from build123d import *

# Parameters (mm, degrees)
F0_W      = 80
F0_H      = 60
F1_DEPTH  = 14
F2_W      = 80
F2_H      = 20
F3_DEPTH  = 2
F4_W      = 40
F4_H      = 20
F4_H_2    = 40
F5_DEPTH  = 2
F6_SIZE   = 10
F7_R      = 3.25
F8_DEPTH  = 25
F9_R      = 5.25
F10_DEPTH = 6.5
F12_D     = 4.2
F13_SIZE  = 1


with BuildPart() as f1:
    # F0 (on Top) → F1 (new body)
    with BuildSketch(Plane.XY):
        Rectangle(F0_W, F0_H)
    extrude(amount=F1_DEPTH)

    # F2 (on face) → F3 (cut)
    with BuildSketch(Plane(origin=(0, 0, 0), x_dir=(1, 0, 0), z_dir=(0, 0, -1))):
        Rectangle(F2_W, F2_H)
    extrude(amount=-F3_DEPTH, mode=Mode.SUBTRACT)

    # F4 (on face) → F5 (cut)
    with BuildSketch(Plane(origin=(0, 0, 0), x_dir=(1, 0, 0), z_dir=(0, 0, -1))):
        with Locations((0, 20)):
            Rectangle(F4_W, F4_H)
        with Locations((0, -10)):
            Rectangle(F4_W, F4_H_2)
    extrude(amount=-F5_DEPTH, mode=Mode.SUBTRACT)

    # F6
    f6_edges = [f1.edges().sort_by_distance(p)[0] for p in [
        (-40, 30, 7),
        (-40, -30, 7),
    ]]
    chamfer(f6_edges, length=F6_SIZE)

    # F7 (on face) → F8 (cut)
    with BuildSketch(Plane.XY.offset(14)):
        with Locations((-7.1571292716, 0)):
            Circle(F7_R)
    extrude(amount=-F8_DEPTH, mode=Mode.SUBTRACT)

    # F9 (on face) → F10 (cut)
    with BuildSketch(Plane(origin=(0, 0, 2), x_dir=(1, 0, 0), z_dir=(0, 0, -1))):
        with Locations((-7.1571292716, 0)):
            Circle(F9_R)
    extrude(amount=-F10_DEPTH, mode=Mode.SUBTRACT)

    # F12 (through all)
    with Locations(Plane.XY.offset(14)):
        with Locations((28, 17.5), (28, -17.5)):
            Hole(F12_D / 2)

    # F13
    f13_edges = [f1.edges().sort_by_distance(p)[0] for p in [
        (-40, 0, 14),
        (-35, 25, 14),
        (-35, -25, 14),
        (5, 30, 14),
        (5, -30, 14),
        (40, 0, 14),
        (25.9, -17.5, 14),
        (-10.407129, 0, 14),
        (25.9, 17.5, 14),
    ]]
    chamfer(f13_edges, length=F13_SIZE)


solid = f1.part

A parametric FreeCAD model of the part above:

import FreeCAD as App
import Part
import Sketcher


def edges_at(feature, points):
    """Names of the edges that pass closest to the given points."""
    edges = feature.Shape.Edges
    near = lambda p: min(range(len(edges)), key=lambda i: edges[i].distToShape(Part.Vertex(*p))[0])
    return sorted({f"Edge{near(p) + 1}" for p in points})

doc = App.newDocument("Part")
body = doc.addObject("PartDesign::Body", "Body")

# Sketch on XY plane
sketch1 = body.newObject("Sketcher::SketchObject", "Sketch")
sketch1.AttachmentSupport = (doc.getObject("XY_Plane"), [""])
sketch1.MapMode = "FlatFace"
sketch1.addGeometry(Part.LineSegment(App.Vector(-40, 30, 0), App.Vector(-40, -30, 0)), False)
sketch1.addGeometry(Part.LineSegment(App.Vector(-40, -30, 0), App.Vector(40, -30, 0)), False)
sketch1.addGeometry(Part.LineSegment(App.Vector(40, -30, 0), App.Vector(40, 30, 0)), False)
sketch1.addGeometry(Part.LineSegment(App.Vector(40, 30, 0), App.Vector(-40, 30, 0)), False)
sketch1.addConstraint(Sketcher.Constraint("Coincident", 0, 2, 1, 1))
sketch1.addConstraint(Sketcher.Constraint("Coincident", 1, 2, 2, 1))
sketch1.addConstraint(Sketcher.Constraint("Coincident", 2, 2, 3, 1))
sketch1.addConstraint(Sketcher.Constraint("Coincident", 3, 2, 0, 1))
sketch1.addConstraint(Sketcher.Constraint("Vertical", 0))
sketch1.addConstraint(Sketcher.Constraint("Horizontal", 1))
sketch1.addConstraint(Sketcher.Constraint("Vertical", 2))
sketch1.addConstraint(Sketcher.Constraint("Horizontal", 3))
sketch1.addConstraint(Sketcher.Constraint("Symmetric", 0, 2, 2, 2, -1, 1))
sketch1.addConstraint(Sketcher.Constraint("DistanceX", 1, 1, 1, 2, 80.0))
sketch1.addConstraint(Sketcher.Constraint("DistanceY", 0, 2, 0, 1, 60.0))
pad1 = body.newObject("PartDesign::Pad", "Pad")
pad1.Profile = sketch1
pad1.Length = 14

# Sketch on XY plane
sketch2 = body.newObject("Sketcher::SketchObject", "Sketch001")
sketch2.AttachmentSupport = (doc.getObject("XY_Plane"), [""])
sketch2.MapMode = "FlatFace"
sketch2.addGeometry(Part.LineSegment(App.Vector(-40, -10, 0), App.Vector(-40, 10, 0)), False)
sketch2.addGeometry(Part.LineSegment(App.Vector(-40, 10, 0), App.Vector(40, 10, 0)), False)
sketch2.addGeometry(Part.LineSegment(App.Vector(40, 10, 0), App.Vector(40, -10, 0)), False)
sketch2.addGeometry(Part.LineSegment(App.Vector(40, -10, 0), App.Vector(-40, -10, 0)), False)
sketch2.addConstraint(Sketcher.Constraint("Coincident", 0, 2, 1, 1))
sketch2.addConstraint(Sketcher.Constraint("Coincident", 1, 2, 2, 1))
sketch2.addConstraint(Sketcher.Constraint("Coincident", 2, 2, 3, 1))
sketch2.addConstraint(Sketcher.Constraint("Coincident", 3, 2, 0, 1))
sketch2.addConstraint(Sketcher.Constraint("Vertical", 0))
sketch2.addConstraint(Sketcher.Constraint("Horizontal", 1))
sketch2.addConstraint(Sketcher.Constraint("Vertical", 2))
sketch2.addConstraint(Sketcher.Constraint("Horizontal", 3))
sketch2.addConstraint(Sketcher.Constraint("Symmetric", 0, 2, 2, 2, -1, 1))
sketch2.addConstraint(Sketcher.Constraint("DistanceX", 1, 1, 1, 2, 80.0))
sketch2.addConstraint(Sketcher.Constraint("DistanceY", 0, 1, 0, 2, 20.0))
pocket1 = body.newObject("PartDesign::Pocket", "Pocket")
pocket1.Profile = sketch2
pocket1.Length = 2
pocket1.Reversed = True

# Sketch on XY plane
sketch3 = body.newObject("Sketcher::SketchObject", "Sketch002")
sketch3.AttachmentSupport = (doc.getObject("XY_Plane"), [""])
sketch3.MapMode = "FlatFace"
sketch3.addGeometry(Part.LineSegment(App.Vector(-20, -30, 0), App.Vector(-20, 30, 0)), False)
sketch3.addGeometry(Part.LineSegment(App.Vector(-20, 30, 0), App.Vector(20, 30, 0)), False)
sketch3.addGeometry(Part.LineSegment(App.Vector(20, 30, 0), App.Vector(20, -30, 0)), False)
sketch3.addGeometry(Part.LineSegment(App.Vector(20, -30, 0), App.Vector(-20, -30, 0)), False)
sketch3.addConstraint(Sketcher.Constraint("Coincident", 0, 2, 1, 1))
sketch3.addConstraint(Sketcher.Constraint("Coincident", 1, 2, 2, 1))
sketch3.addConstraint(Sketcher.Constraint("Coincident", 2, 2, 3, 1))
sketch3.addConstraint(Sketcher.Constraint("Coincident", 3, 2, 0, 1))
sketch3.addConstraint(Sketcher.Constraint("Vertical", 0))
sketch3.addConstraint(Sketcher.Constraint("Horizontal", 1))
sketch3.addConstraint(Sketcher.Constraint("Vertical", 2))
sketch3.addConstraint(Sketcher.Constraint("Horizontal", 3))
sketch3.addConstraint(Sketcher.Constraint("Symmetric", 0, 2, 2, 2, -1, 1))
sketch3.addConstraint(Sketcher.Constraint("DistanceX", 1, 1, 1, 2, 40.0))
sketch3.addConstraint(Sketcher.Constraint("DistanceY", 0, 1, 0, 2, 60.0))
pocket2 = body.newObject("PartDesign::Pocket", "Pocket001")
pocket2.Profile = sketch3
pocket2.Length = 2
pocket2.Reversed = True
doc.recompute()

chamfer = body.newObject("PartDesign::Chamfer", "Chamfer")
chamfer.Base = (pocket2, edges_at(pocket2, [(-40, 30, 7), (-40, -30, 7)]))
chamfer.Size = 10

# Sketch on XY plane
sketch4 = body.newObject("Sketcher::SketchObject", "Sketch003")
sketch4.AttachmentSupport = (doc.getObject("XY_Plane"), [""])
sketch4.MapMode = "FlatFace"
sketch4.AttachmentOffset = App.Placement(App.Vector(0, 0, 14), App.Rotation())
sketch4.addGeometry(Part.Circle(App.Vector(-7.2, 0, 0), App.Vector(0, 0, 1), 3.2), False)
sketch4.addConstraint(Sketcher.Constraint("PointOnObject", 0, 3, -1))
sketch4.addConstraint(Sketcher.Constraint("Diameter", 0, 6.5))
sketch4.addConstraint(Sketcher.Constraint("DistanceX", 0, 3, -1, 1, 7.157129))
pocket3 = body.newObject("PartDesign::Pocket", "Pocket002")
pocket3.Profile = sketch4
pocket3.Length = 25

# Sketch on XY plane
sketch5 = body.newObject("Sketcher::SketchObject", "Sketch004")
sketch5.AttachmentSupport = (doc.getObject("XY_Plane"), [""])
sketch5.MapMode = "FlatFace"
sketch5.AttachmentOffset = App.Placement(App.Vector(0, 0, 2), App.Rotation())
sketch5.addGeometry(Part.Circle(App.Vector(-7, 0, 0), App.Vector(0, 0, 1), 5), False)
sketch5.addConstraint(Sketcher.Constraint("PointOnObject", 0, 3, -1))
sketch5.addConstraint(Sketcher.Constraint("Diameter", 0, 10.5))
sketch5.addConstraint(Sketcher.Constraint("DistanceX", 0, 3, -1, 1, 7.157129))
pocket4 = body.newObject("PartDesign::Pocket", "Pocket003")
pocket4.Profile = sketch5
pocket4.Length = 6.5
pocket4.Reversed = True

# Sketch on XY plane
sketch6 = body.newObject("Sketcher::SketchObject", "Sketch005")
sketch6.AttachmentSupport = (doc.getObject("XY_Plane"), [""])
sketch6.MapMode = "FlatFace"
sketch6.AttachmentOffset = App.Placement(App.Vector(0, 0, 14), App.Rotation())
sketch6.addGeometry(Part.Circle(App.Vector(28, 17.5, 0), App.Vector(0, 0, 1), 2.1), False)
sketch6.addGeometry(Part.Circle(App.Vector(28, -17.5, 0), App.Vector(0, 0, 1), 2.1), False)
sketch6.addConstraint(Sketcher.Constraint("Equal", 0, 1))
sketch6.addConstraint(Sketcher.Constraint("Symmetric", 0, 3, 1, 3, -1))
sketch6.addConstraint(Sketcher.Constraint("Diameter", 0, 4.2))
sketch6.addConstraint(Sketcher.Constraint("DistanceX", -1, 1, 0, 3, 28.0))
sketch6.addConstraint(Sketcher.Constraint("DistanceY", 1, 3, 0, 3, 35.0))
doc.recompute()
hole = body.newObject("PartDesign::Hole", "Hole")
hole.Profile = sketch6
hole.ThreadType = "None"
hole.Diameter = 4.2
hole.DepthType = "ThroughAll"
doc.recompute()

chamfer2 = body.newObject("PartDesign::Chamfer", "Chamfer001")
chamfer2.Base = (hole, edges_at(hole, [
    (-40, 0, 14),
    (-35, 25, 14),
    (-35, -25, 14),
    (5, 30, 14),
    (5, -30, 14),
    (40, 0, 14),
    (30.1, -17.5, 14),
    (-10.407, 0, 14),
    (30.1, 17.5, 14),
]))
chamfer2.Size = 1

doc.recompute()
